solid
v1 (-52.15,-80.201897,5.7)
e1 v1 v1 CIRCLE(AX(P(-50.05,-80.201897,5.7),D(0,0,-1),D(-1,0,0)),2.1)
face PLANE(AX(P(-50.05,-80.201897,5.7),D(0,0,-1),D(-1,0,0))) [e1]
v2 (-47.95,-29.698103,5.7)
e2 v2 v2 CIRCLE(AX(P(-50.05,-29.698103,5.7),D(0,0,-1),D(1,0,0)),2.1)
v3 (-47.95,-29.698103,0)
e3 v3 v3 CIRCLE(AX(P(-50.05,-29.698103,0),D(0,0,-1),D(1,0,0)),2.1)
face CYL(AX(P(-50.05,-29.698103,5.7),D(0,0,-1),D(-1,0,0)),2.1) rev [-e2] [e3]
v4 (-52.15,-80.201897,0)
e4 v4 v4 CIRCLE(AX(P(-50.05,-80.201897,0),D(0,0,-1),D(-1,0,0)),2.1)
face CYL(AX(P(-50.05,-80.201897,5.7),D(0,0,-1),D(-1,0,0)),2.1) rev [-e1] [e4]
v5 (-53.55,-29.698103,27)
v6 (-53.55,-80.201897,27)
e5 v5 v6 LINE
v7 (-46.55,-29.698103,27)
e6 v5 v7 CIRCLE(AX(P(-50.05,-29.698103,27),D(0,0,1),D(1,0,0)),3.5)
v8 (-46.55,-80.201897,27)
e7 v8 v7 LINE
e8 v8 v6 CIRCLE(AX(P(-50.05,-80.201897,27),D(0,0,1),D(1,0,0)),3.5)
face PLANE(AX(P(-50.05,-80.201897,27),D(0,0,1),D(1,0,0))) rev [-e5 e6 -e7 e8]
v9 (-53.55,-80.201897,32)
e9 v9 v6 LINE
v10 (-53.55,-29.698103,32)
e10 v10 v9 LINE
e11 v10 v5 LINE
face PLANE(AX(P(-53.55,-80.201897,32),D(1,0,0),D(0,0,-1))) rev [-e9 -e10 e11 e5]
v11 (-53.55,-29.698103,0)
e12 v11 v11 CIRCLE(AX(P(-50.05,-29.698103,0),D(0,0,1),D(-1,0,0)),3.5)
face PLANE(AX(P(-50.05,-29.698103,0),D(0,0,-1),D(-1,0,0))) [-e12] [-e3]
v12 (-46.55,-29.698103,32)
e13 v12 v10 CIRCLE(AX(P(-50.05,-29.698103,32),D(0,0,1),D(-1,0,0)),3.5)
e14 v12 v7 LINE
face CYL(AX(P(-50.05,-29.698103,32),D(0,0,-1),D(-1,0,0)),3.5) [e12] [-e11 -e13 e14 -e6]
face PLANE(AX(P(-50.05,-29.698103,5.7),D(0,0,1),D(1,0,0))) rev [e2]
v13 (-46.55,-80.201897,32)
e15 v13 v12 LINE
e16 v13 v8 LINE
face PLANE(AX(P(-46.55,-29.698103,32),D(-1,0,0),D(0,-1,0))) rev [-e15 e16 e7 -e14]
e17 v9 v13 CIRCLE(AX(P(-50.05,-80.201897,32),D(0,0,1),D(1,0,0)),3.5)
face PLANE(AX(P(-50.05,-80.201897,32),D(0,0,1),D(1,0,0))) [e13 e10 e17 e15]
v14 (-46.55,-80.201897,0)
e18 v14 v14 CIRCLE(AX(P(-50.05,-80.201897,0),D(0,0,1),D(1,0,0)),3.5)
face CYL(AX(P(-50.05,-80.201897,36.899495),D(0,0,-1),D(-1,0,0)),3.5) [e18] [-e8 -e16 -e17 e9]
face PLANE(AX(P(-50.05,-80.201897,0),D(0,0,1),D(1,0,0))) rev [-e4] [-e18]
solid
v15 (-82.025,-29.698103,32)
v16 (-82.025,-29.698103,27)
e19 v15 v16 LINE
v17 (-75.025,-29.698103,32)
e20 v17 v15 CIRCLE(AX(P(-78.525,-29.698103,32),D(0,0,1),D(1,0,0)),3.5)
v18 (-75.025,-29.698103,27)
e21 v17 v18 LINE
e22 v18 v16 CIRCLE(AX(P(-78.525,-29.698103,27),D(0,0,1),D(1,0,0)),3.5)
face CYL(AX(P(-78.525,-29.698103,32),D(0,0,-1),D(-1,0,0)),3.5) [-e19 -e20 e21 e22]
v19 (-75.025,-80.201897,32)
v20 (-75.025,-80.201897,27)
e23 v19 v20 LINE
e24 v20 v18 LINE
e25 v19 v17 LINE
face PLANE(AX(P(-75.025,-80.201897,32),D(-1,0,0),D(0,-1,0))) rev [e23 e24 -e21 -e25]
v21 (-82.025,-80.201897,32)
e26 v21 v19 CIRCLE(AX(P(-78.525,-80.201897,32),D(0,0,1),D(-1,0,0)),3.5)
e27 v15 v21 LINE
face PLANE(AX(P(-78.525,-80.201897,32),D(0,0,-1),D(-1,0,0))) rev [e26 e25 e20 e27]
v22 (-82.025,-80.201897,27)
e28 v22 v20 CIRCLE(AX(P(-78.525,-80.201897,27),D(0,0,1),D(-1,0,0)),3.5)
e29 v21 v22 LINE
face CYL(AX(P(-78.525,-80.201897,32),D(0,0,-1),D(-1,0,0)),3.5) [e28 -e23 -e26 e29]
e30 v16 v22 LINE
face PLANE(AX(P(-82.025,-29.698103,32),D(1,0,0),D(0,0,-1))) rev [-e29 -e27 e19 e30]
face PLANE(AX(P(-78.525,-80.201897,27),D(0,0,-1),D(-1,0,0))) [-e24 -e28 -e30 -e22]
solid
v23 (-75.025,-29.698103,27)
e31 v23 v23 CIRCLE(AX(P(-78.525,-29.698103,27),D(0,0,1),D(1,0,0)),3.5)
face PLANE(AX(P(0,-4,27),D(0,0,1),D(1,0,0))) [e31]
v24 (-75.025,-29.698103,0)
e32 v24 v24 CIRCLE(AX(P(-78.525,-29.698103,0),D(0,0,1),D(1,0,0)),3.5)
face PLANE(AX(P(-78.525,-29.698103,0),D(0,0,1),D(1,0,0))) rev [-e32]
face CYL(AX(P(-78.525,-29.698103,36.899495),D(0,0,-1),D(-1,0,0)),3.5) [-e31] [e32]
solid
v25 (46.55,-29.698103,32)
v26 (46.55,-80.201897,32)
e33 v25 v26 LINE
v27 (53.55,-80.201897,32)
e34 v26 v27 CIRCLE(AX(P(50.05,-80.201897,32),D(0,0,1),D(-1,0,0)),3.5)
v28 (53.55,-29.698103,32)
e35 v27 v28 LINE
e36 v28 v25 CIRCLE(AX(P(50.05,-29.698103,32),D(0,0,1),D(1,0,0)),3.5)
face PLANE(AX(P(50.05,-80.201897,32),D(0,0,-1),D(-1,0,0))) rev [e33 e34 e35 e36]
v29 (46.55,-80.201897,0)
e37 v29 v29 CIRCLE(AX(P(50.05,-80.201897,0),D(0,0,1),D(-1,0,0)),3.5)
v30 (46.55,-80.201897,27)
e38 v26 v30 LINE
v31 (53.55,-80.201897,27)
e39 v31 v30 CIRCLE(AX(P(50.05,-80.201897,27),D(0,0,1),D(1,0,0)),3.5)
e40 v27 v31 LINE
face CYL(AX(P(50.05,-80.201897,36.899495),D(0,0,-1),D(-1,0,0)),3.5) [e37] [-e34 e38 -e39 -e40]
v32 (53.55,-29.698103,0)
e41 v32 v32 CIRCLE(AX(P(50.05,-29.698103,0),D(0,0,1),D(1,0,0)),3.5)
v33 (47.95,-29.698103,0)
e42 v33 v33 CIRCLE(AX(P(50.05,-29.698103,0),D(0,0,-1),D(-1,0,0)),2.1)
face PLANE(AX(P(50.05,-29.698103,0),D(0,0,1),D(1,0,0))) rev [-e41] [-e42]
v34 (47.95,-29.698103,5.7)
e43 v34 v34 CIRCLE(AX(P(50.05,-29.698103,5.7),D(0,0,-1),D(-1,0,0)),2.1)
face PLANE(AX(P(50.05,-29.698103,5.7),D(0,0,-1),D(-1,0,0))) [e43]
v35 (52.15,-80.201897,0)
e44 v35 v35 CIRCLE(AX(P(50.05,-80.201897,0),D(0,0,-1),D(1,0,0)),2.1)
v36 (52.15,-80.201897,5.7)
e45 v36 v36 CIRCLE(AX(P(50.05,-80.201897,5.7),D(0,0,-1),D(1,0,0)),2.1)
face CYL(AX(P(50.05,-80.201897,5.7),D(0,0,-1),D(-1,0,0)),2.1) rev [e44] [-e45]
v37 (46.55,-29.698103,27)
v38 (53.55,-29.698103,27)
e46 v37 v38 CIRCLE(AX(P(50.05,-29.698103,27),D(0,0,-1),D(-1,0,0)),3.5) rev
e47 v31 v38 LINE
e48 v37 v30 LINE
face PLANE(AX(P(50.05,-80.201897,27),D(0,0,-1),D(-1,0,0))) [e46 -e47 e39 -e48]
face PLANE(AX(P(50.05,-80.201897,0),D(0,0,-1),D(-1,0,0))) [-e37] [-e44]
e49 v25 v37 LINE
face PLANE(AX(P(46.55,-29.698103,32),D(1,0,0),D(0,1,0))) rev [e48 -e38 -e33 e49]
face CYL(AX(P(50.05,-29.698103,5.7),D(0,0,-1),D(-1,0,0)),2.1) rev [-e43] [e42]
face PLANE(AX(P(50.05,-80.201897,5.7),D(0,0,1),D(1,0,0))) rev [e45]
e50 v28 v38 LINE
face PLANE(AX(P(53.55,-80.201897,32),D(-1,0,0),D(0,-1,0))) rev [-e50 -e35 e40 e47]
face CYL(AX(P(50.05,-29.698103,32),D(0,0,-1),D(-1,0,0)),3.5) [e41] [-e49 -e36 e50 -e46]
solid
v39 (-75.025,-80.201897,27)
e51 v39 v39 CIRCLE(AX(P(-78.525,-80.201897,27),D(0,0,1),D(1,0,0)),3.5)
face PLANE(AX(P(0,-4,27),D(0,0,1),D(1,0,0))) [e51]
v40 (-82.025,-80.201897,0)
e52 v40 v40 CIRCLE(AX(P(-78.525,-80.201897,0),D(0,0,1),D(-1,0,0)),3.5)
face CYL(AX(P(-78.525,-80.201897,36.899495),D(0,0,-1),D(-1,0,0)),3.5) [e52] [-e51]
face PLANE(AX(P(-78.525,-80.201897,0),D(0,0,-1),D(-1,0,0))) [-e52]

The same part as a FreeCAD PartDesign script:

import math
import FreeCAD as App
import Part
import Sketcher
Q = App.Units.Quantity

doc = App.newDocument("Part")
body = doc.addObject("PartDesign::Body", "Body")

# Sketch on XY plane
sketch1 = body.newObject("Sketcher::SketchObject", "Sketch")
sketch1.AttachmentSupport = (doc.getObject("XY_Plane"), [""])
sketch1.MapMode = "FlatFace"
sketch1.addGeometry(Part.Circle(App.Vector(-50, -80.2, 0), App.Vector(0, 0, 1), 3.5), False)
sketch1.addConstraint([
    Sketcher.Constraint("Diameter", 0, Q("7 mm")),
    Sketcher.Constraint("DistanceX", 0, 3, -1, 1, Q("50.05 mm")),
    Sketcher.Constraint("DistanceY", 0, 3, -1, 1, Q("80.201897 mm")),
])
pad1 = body.newObject("PartDesign::Pad", "Pad")
pad1.Profile = sketch1
pad1.Length = 27
body2 = doc.addObject("PartDesign::Body", "Body001")

# Sketch on XY plane
sketch2 = body2.newObject("Sketcher::SketchObject", "Sketch001")
sketch2.AttachmentSupport = (doc.getObject("XY_Plane001"), [""])
sketch2.MapMode = "FlatFace"
sketch2.addGeometry(Part.Circle(App.Vector(50, -80.2, 0), App.Vector(0, 0, 1), 3.5), False)
sketch2.addConstraint([
    Sketcher.Constraint("Diameter", 0, Q("7 mm")),
    Sketcher.Constraint("DistanceX", -1, 1, 0, 3, Q("50.05 mm")),
    Sketcher.Constraint("DistanceY", 0, 3, -1, 1, Q("80.201897 mm")),
])
pad2 = body2.newObject("PartDesign::Pad", "Pad001")
pad2.Profile = sketch2
pad2.Length = 27
body3 = doc.addObject("PartDesign::Body", "Body002")

# Sketch on XY plane
sketch3 = body3.newObject("Sketcher::SketchObject", "Sketch002")
sketch3.AttachmentSupport = (doc.getObject("XY_Plane002"), [""])
sketch3.MapMode = "FlatFace"
sketch3.addGeometry(Part.Circle(App.Vector(50, -29.7, 0), App.Vector(0, 0, 1), 3.5), False)
sketch3.addConstraint([
    Sketcher.Constraint("Diameter", 0, Q("7 mm")),
    Sketcher.Constraint("DistanceX", -1, 1, 0, 3, Q("50.05 mm")),
    Sketcher.Constraint("DistanceY", 0, 3, -1, 1, Q("29.698103 mm")),
])
pad3 = body3.newObject("PartDesign::Pad", "Pad002")
pad3.Profile = sketch3
pad3.Length = 27
body4 = doc.addObject("PartDesign::Body", "Body003")

# Sketch on XY plane
sketch4 = body4.newObject("Sketcher::SketchObject", "Sketch003")
sketch4.AttachmentSupport = (doc.getObject("XY_Plane003"), [""])
sketch4.MapMode = "FlatFace"
sketch4.addGeometry(Part.Circle(App.Vector(-50, -29.7, 0), App.Vector(0, 0, 1), 3.5), False)
sketch4.addConstraint([
    Sketcher.Constraint("Diameter", 0, Q("7 mm")),
    Sketcher.Constraint("DistanceX", 0, 3, -1, 1, Q("50.05 mm")),
    Sketcher.Constraint("DistanceY", 0, 3, -1, 1, Q("29.698103 mm")),
])
pad4 = body4.newObject("PartDesign::Pad", "Pad003")
pad4.Profile = sketch4
pad4.Length = 27
body5 = doc.addObject("PartDesign::Body", "Body004")

# Sketch on XY plane
sketch5 = body5.newObject("Sketcher::SketchObject", "Sketch004")
sketch5.AttachmentSupport = (doc.getObject("XY_Plane004"), [""])
sketch5.MapMode = "FlatFace"
sketch5.addGeometry(Part.Circle(App.Vector(-78.5, -80.2, 0), App.Vector(0, 0, 1), 3.5), False)
sketch5.addConstraint([
    Sketcher.Constraint("Diameter", 0, Q("7 mm")),
    Sketcher.Constraint("DistanceX", 0, 3, -1, 1, Q("78.525 mm")),
    Sketcher.Constraint("DistanceY", 0, 3, -1, 1, Q("80.201897 mm")),
])
pad5 = body5.newObject("PartDesign::Pad", "Pad004")
pad5.Profile = sketch5
pad5.Length = 27
body6 = doc.addObject("PartDesign::Body", "Body005")

# Sketch on XY plane
sketch6 = body6.newObject("Sketcher::SketchObject", "Sketch005")
sketch6.AttachmentSupport = (doc.getObject("XY_Plane005"), [""])
sketch6.MapMode = "FlatFace"
sketch6.addGeometry(Part.Circle(App.Vector(-78.5, -29.7, 0), App.Vector(0, 0, 1), 3.5), False)
sketch6.addConstraint([
    Sketcher.Constraint("Diameter", 0, Q("7 mm")),
    Sketcher.Constraint("DistanceX", 0, 3, -1, 1, Q("78.525 mm")),
    Sketcher.Constraint("DistanceY", 0, 3, -1, 1, Q("29.698103 mm")),
])
pad6 = body6.newObject("PartDesign::Pad", "Pad005")
pad6.Profile = sketch6
pad6.Length = 27
body7 = doc.addObject("PartDesign::Body", "Body006")
body7.AllowCompound = True

# Sketch on XY plane
sketch7 = body7.newObject("Sketcher::SketchObject", "Sketch006")
sketch7.AttachmentSupport = (doc.getObject("XY_Plane006"), [""])
sketch7.MapMode = "FlatFace"
sketch7.addGeometry([
    Part.Circle(App.Vector(-50, -80.2, 0), App.Vector(0, 0, 1), 2.1),
    Part.Circle(App.Vector(-50, -29.7, 0), App.Vector(0, 0, 1), 2.1),
    Part.Circle(App.Vector(50, -29.7, 0), App.Vector(0, 0, 1), 2.1),
    Part.Circle(App.Vector(50, -80.2, 0), App.Vector(0, 0, 1), 2.1),
], False)
sketch7.addConstraint([
    Sketcher.Constraint("Equal", 0, 1),
    Sketcher.Constraint("Equal", 1, 2),
    Sketcher.Constraint("Equal", 2, 3),
    Sketcher.Constraint("Symmetric", 1, 3, 2, 3, -2),
    Sketcher.Constraint("Symmetric", 0, 3, 3, 3, -2),
    Sketcher.Constraint("Vertical", 0, 3, 1, 3),
    Sketcher.Constraint("Diameter", 0, Q("4.2 mm")),
    Sketcher.Constraint("DistanceX", 1, 3, 2, 3, Q("100.1 mm")),
    Sketcher.Constraint("DistanceY", 0, 3, -1, 1, Q("80.201897 mm")),
    Sketcher.Constraint("DistanceY", 1, 3, -1, 1, Q("29.698103 mm")),
])
pad7 = body7.newObject("PartDesign::Pad", "Pad006")
pad7.Profile = sketch7
pad7.Length = 5.7
doc.recompute()

body8 = doc.addObject("PartDesign::Body", "Body007")
body8.BaseFeature = body7
boolean = body.newObject("PartDesign::Boolean", "Boolean")
boolean.Type = "Cut"
boolean.addObjects([body8])
doc.recompute()

body9 = doc.addObject("PartDesign::Body", "Body008")
body9.BaseFeature = body7
boolean2 = body2.newObject("PartDesign::Boolean", "Boolean001")
boolean2.Type = "Cut"
boolean2.addObjects([body9])
doc.recompute()

body10 = doc.addObject("PartDesign::Body", "Body009")
body10.BaseFeature = body7
boolean3 = body3.newObject("PartDesign::Boolean", "Boolean002")
boolean3.Type = "Cut"
boolean3.addObjects([body10])
doc.recompute()

boolean4 = body4.newObject("PartDesign::Boolean", "Boolean003")
boolean4.Type = "Cut"
boolean4.addObjects([body7])
body.AllowCompound = True
doc.recompute()

boolean5 = body.newObject("PartDesign::Boolean", "Boolean004")
boolean5.Type = "Fuse"
boolean5.addObjects([body4])
doc.recompute()

boolean6 = body.newObject("PartDesign::Boolean", "Boolean005")
boolean6.Type = "Fuse"
boolean6.addObjects([body2])
doc.recompute()

boolean7 = body.newObject("PartDesign::Boolean", "Boolean006")
boolean7.Type = "Fuse"
boolean7.addObjects([body3])

# Sketch on XY plane
sketch8 = body.newObject("Sketcher::SketchObject", "Sketch007")
sketch8.AttachmentSupport = (doc.getObject("XY_Plane"), [""])
sketch8.MapMode = "FlatFace"
sketch8.AttachmentOffset = App.Placement(App.Vector(0, 0, 27), App.Rotation())
sketch8.addGeometry([
    Part.LineSegment(App.Vector(-53.5, -29.7, 0), App.Vector(-53.5, -80.2, 0)),  # 0
    Part.ArcOfCircle(Part.Circle(App.Vector(-50, -80.2, 0), App.Vector(0, 0, 1), 3.5), math.radians(180), math.radians(360)),  # 1
    Part.LineSegment(App.Vector(-46.5, -80.2, 0), App.Vector(-46.5, -29.7, 0)),  # 2
    Part.ArcOfCircle(Part.Circle(App.Vector(-50, -29.7, 0), App.Vector(0, 0, 1), 3.5), math.radians(0), math.radians(180)),  # 3
    Part.LineSegment(App.Vector(46.5, -29.7, 0), App.Vector(46.5, -80.2, 0)),  # 4
    Part.ArcOfCircle(Part.Circle(App.Vector(50, -80.2, 0), App.Vector(0, 0, 1), 3.5), math.radians(180), math.radians(360)),  # 5
    Part.LineSegment(App.Vector(53.5, -80.2, 0), App.Vector(53.5, -29.7, 0)),  # 6
    Part.ArcOfCircle(Part.Circle(App.Vector(50, -29.7, 0), App.Vector(0, 0, 1), 3.5), math.radians(0), math.radians(180)),  # 7
    Part.LineSegment(App.Vector(-82, -29.7, 0), App.Vector(-82, -80.2, 0)),  # 8
    Part.ArcOfCircle(Part.Circle(App.Vector(-78.5, -80.2, 0), App.Vector(0, 0, 1), 3.5), math.radians(180), math.radians(360)),  # 9
    Part.LineSegment(App.Vector(-75, -80.2, 0), App.Vector(-75, -29.7, 0)),  # 10
    Part.ArcOfCircle(Part.Circle(App.Vector(-78.5, -29.7, 0), App.Vector(0, 0, 1), 3.5), math.radians(0), math.radians(180)),  # 11
], False)
sketch8.addConstraint([
    Sketcher.Constraint("Tangent", 0, 2, 1, 1),
    Sketcher.Constraint("Tangent", 1, 2, 2, 1),
    Sketcher.Constraint("Tangent", 2, 2, 3, 1),
    Sketcher.Constraint("Tangent", 3, 2, 0, 1),
    Sketcher.Constraint("Tangent", 4, 2, 5, 1),
    Sketcher.Constraint("Tangent", 5, 2, 6, 1),
    Sketcher.Constraint("Tangent", 6, 2, 7, 1),
    Sketcher.Constraint("Tangent", 7, 2, 4, 1),
    Sketcher.Constraint("Tangent", 8, 2, 9, 1),
    Sketcher.Constraint("Tangent", 9, 2, 10, 1),
    Sketcher.Constraint("Tangent", 10, 2, 11, 1),
    Sketcher.Constraint("Tangent", 11, 2, 8, 1),
    Sketcher.Constraint("Vertical", 0),
    Sketcher.Constraint("Vertical", 2),
    Sketcher.Constraint("Vertical", 4),
    Sketcher.Constraint("Vertical", 6),
    Sketcher.Constraint("Vertical", 8),
    Sketcher.Constraint("Vertical", 10),
    Sketcher.Constraint("Equal", 3, 5),
    Sketcher.Constraint("Equal", 7, 9),
    Sketcher.Constraint("Symmetric", 1, 3, 5, 3, -2),
    Sketcher.Constraint("Horizontal", 3, 3, 7, 3),
    Sketcher.Constraint("Horizontal", 5, 3, 9, 3),
    Sketcher.Constraint("Horizontal", 7, 3, 11, 3),
    Sketcher.Constraint("Radius", 1, Q("3.5 mm")),
    Sketcher.Constraint("DistanceX", 1, 3, 5, 3, Q("100.1 mm")),
    Sketcher.Constraint("DistanceX", 9, 3, -1, 1, Q("78.525 mm")),
    Sketcher.Constraint("DistanceY", 0, 2, 0, 1, Q("50.503795 mm")),
    Sketcher.Constraint("DistanceY", 1, 3, -1, 1, Q("80.201897 mm")),
])
pad8 = body.newObject("PartDesign::Pad", "Pad007")
pad8.Profile = sketch8
pad8.Length = 5

doc.recompute()
